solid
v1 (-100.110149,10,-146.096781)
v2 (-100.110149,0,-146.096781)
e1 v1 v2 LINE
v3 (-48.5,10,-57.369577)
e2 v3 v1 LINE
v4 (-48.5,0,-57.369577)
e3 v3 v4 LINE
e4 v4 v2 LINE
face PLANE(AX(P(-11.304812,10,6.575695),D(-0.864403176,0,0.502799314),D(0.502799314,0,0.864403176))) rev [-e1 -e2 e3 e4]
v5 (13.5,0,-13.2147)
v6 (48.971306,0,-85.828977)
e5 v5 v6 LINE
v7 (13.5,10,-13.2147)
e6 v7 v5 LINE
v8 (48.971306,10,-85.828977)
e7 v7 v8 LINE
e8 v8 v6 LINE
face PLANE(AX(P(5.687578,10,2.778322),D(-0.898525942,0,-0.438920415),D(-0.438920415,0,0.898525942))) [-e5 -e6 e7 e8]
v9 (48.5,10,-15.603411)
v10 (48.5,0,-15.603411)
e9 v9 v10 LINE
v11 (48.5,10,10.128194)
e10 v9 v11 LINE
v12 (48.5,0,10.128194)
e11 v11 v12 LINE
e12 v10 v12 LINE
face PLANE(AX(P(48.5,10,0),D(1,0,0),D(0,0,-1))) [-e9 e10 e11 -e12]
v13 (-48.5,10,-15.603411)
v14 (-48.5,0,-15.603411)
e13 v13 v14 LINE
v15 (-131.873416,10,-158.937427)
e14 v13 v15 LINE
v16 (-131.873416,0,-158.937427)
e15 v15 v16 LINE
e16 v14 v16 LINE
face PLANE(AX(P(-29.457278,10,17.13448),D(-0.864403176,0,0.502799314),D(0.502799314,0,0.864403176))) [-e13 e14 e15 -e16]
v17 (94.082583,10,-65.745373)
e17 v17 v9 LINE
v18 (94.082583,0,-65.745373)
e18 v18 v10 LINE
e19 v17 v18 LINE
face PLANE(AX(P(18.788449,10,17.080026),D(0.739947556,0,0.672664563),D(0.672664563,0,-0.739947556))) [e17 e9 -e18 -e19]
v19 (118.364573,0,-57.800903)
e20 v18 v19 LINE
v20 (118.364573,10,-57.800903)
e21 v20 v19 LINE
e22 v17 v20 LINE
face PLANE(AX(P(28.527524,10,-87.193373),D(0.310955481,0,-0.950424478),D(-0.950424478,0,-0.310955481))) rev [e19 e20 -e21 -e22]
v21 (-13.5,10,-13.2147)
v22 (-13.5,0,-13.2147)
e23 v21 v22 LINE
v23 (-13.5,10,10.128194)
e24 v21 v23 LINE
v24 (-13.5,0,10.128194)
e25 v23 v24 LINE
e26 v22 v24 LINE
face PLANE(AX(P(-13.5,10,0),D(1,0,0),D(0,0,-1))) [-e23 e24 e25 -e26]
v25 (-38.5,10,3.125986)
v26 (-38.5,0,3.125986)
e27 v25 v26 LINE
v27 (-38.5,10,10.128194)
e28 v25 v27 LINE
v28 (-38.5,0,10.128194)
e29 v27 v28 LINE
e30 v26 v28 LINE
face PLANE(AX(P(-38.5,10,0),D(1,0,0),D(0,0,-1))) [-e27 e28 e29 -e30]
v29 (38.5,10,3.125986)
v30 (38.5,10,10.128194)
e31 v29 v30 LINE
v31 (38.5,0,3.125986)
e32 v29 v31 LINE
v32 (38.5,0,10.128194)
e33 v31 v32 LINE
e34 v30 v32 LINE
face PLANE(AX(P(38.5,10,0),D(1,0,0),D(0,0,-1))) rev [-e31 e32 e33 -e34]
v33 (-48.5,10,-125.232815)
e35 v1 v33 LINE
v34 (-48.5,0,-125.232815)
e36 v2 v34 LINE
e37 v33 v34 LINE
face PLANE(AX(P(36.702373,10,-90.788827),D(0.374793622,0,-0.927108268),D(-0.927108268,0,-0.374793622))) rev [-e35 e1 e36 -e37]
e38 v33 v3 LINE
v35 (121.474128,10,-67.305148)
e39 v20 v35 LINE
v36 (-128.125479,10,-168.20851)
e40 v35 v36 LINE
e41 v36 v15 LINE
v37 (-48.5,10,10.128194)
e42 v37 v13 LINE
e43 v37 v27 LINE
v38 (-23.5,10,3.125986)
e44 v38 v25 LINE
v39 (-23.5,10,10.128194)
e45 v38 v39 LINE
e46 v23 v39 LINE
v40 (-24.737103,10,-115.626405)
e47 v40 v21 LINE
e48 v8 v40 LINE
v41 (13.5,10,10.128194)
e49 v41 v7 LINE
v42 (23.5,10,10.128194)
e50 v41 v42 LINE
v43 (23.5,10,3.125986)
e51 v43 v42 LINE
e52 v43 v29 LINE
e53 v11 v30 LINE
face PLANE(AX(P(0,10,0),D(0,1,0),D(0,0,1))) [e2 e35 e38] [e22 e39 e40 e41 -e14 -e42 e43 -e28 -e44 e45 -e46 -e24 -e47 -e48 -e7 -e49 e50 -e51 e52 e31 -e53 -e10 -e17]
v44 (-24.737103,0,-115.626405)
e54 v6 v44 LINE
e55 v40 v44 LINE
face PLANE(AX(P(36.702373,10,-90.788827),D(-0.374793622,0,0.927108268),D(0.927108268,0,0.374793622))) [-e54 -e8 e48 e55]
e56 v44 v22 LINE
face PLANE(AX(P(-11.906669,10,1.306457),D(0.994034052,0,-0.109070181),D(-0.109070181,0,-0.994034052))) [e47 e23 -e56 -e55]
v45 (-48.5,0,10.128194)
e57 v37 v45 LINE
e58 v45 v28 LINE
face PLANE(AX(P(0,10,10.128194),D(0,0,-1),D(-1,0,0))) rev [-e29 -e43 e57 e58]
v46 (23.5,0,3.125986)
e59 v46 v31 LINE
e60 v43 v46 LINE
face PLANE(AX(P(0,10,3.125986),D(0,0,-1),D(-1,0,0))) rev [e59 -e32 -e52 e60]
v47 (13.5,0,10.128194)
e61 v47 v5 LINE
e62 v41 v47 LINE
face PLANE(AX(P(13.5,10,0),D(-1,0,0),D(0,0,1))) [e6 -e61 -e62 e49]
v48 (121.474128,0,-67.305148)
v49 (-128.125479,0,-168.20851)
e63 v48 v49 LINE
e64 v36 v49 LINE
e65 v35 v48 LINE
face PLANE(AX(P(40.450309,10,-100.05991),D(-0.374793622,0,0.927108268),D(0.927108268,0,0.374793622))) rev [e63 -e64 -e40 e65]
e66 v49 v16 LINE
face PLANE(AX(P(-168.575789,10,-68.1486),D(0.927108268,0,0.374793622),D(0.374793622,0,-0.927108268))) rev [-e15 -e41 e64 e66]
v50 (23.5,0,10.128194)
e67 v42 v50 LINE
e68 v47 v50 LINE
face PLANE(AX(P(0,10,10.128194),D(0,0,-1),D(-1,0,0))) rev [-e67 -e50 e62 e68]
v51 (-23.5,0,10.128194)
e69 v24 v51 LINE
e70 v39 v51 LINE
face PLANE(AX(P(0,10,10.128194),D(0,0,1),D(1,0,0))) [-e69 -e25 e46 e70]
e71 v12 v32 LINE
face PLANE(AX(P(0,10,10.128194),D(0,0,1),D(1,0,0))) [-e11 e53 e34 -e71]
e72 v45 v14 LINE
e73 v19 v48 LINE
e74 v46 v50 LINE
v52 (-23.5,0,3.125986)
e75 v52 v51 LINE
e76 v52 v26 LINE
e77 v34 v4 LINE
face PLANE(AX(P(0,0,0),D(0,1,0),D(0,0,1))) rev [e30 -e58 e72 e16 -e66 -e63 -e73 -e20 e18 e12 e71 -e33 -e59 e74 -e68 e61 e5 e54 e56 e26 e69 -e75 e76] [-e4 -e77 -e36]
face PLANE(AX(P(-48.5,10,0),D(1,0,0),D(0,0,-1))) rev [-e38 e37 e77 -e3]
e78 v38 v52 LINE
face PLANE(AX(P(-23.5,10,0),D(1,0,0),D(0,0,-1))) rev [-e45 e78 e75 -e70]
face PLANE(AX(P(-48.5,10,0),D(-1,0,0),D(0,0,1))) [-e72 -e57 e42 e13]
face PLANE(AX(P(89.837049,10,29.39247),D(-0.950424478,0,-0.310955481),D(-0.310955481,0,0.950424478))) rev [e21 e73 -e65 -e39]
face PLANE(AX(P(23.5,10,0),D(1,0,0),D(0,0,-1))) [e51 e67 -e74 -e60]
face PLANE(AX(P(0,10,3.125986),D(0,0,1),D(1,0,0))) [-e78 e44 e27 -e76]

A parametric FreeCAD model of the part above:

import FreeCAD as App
import Part
import Sketcher
from FreeCAD import Vector
Q = App.Units.Quantity

doc = App.newDocument("Part")
body = doc.addObject("PartDesign::Body", "Body")

# Sketch on XZ plane
sketch1 = body.newObject("Sketcher::SketchObject", "Sketch")
sketch1.AttachmentSupport = (doc.getObject("XZ_Plane"), [""])
sketch1.MapMode = "FlatFace"
sketch1.addGeometry([
    Part.LineSegment(Vector(13.5, 10.1, 0), Vector(23.5, 10.1, 0)),  # 0
    Part.LineSegment(Vector(23.5, 10.1, 0), Vector(23.5, 3.1, 0)),  # 1
    Part.LineSegment(Vector(23.5, 3.1, 0), Vector(38.5, 3.1, 0)),  # 2
    Part.LineSegment(Vector(38.5, 3.1, 0), Vector(38.5, 10.1, 0)),  # 3
    Part.LineSegment(Vector(38.5, 10.1, 0), Vector(48.5, 10.1, 0)),  # 4
    Part.LineSegment(Vector(48.5, 10.1, 0), Vector(48.5, -15.6, 0)),  # 5
    Part.LineSegment(Vector(48.5, -15.6, 0), Vector(94.1, -65.7, 0)),  # 6
    Part.LineSegment(Vector(94.1, -65.7, 0), Vector(118.4, -57.8, 0)),  # 7
    Part.LineSegment(Vector(118.4, -57.8, 0), Vector(121.5, -67.3, 0)),  # 8
    Part.LineSegment(Vector(121.5, -67.3, 0), Vector(-128.1, -168.2, 0)),  # 9
    Part.LineSegment(Vector(-128.1, -168.2, 0), Vector(-131.9, -158.9, 0)),  # 10
    Part.LineSegment(Vector(-131.9, -158.9, 0), Vector(-48.5, -15.6, 0)),  # 11
    Part.LineSegment(Vector(-48.5, -15.6, 0), Vector(-48.5, 10.1, 0)),  # 12
    Part.LineSegment(Vector(-48.5, 10.1, 0), Vector(-38.5, 10.1, 0)),  # 13
    Part.LineSegment(Vector(-38.5, 10.1, 0), Vector(-38.5, 3.1, 0)),  # 14
    Part.LineSegment(Vector(-38.5, 3.1, 0), Vector(-23.5, 3.1, 0)),  # 15
    Part.LineSegment(Vector(-23.5, 3.1, 0), Vector(-23.5, 10.1, 0)),  # 16
    Part.LineSegment(Vector(-23.5, 10.1, 0), Vector(-13.5, 10.1, 0)),  # 17
    Part.LineSegment(Vector(-13.5, 10.1, 0), Vector(-13.5, -13.2, 0)),  # 18
    Part.LineSegment(Vector(-13.5, -13.2, 0), Vector(-24.7, -115.6, 0)),  # 19
    Part.LineSegment(Vector(-24.7, -115.6, 0), Vector(49, -85.8, 0)),  # 20
    Part.LineSegment(Vector(49, -85.8, 0), Vector(13.5, -13.2, 0)),  # 21
    Part.LineSegment(Vector(13.5, -13.2, 0), Vector(13.5, 10.1, 0)),  # 22
    Part.LineSegment(Vector(-100.1, -146.1, 0), Vector(-98.7, -145.5, 0)),  # 23
    Part.LineSegment(Vector(-98.7, -145.5, 0), Vector(-48.5, -125.2, 0)),  # 24
    Part.LineSegment(Vector(-48.5, -125.2, 0), Vector(-48.5, -57.4, 0)),  # 25
    Part.LineSegment(Vector(-48.5, -57.4, 0), Vector(-100.1, -146.1, 0)),  # 26
], False)
sketch1.addConstraint([
    Sketcher.Constraint("Coincident", 0, 2, 1, 1),
    Sketcher.Constraint("Coincident", 1, 2, 2, 1),
    Sketcher.Constraint("Coincident", 2, 2, 3, 1),
    Sketcher.Constraint("Coincident", 3, 2, 4, 1),
    Sketcher.Constraint("Coincident", 4, 2, 5, 1),
    Sketcher.Constraint("Coincident", 5, 2, 6, 1),
    Sketcher.Constraint("Coincident", 6, 2, 7, 1),
    Sketcher.Constraint("Coincident", 7, 2, 8, 1),
    Sketcher.Constraint("Coincident", 8, 2, 9, 1),
    Sketcher.Constraint("Coincident", 9, 2, 10, 1),
    Sketcher.Constraint("Coincident", 10, 2, 11, 1),
    Sketcher.Constraint("Coincident", 11, 2, 12, 1),
    Sketcher.Constraint("Coincident", 12, 2, 13, 1),
    Sketcher.Constraint("Coincident", 13, 2, 14, 1),
    Sketcher.Constraint("Coincident", 14, 2, 15, 1),
    Sketcher.Constraint("Coincident", 15, 2, 16, 1),
    Sketcher.Constraint("Coincident", 16, 2, 17, 1),
    Sketcher.Constraint("Coincident", 17, 2, 18, 1),
    Sketcher.Constraint("Coincident", 18, 2, 19, 1),
    Sketcher.Constraint("Coincident", 19, 2, 20, 1),
    Sketcher.Constraint("Coincident", 20, 2, 21, 1),
    Sketcher.Constraint("Coincident", 21, 2, 22, 1),
    Sketcher.Constraint("Coincident", 22, 2, 0, 1),
    Sketcher.Constraint("Coincident", 23, 2, 24, 1),
    Sketcher.Constraint("Coincident", 24, 2, 25, 1),
    Sketcher.Constraint("Coincident", 25, 2, 26, 1),
    Sketcher.Constraint("Coincident", 26, 2, 23, 1),
    Sketcher.Constraint("Horizontal", 0),
    Sketcher.Constraint("Vertical", 1),
    Sketcher.Constraint("Horizontal", 2),
    Sketcher.Constraint("Vertical", 3),
    Sketcher.Constraint("Horizontal", 4),
    Sketcher.Constraint("Vertical", 5),
    Sketcher.Constraint("Vertical", 12),
    Sketcher.Constraint("Horizontal", 13),
    Sketcher.Constraint("Vertical", 14),
    Sketcher.Constraint("Horizontal", 15),
    Sketcher.Constraint("Vertical", 16),
    Sketcher.Constraint("Horizontal", 17),
    Sketcher.Constraint("Vertical", 18),
    Sketcher.Constraint("Vertical", 22),
    Sketcher.Constraint("Vertical", 25),
    Sketcher.Constraint("Symmetric", 5, 2, 11, 2, -2),
    Sketcher.Constraint("Symmetric", 3, 2, 13, 2, -2),
    Sketcher.Constraint("Symmetric", 1, 2, 15, 2, -2),
    Sketcher.Constraint("Symmetric", 18, 2, 21, 2, -2),
    Sketcher.Constraint("Perpendicular", 7, 8),
    Sketcher.Constraint("Perpendicular", 9, 10),
    Sketcher.Constraint("Perpendicular", 10, 20),
    Sketcher.Constraint("Parallel", 20, 23),
    Sketcher.Constraint("Parallel", 23, 24),
    Sketcher.Constraint("Parallel", 11, 26),
    Sketcher.Constraint("Horizontal", 0, 2, 3, 2),
    Sketcher.Constraint("Horizontal", 13, 2, 16, 2),
    Sketcher.Constraint("Vertical", 12, 2, 24, 2),
    Sketcher.Constraint("Equal", 0, 4),
    Sketcher.Constraint("Equal", 8, 10),
    Sketcher.Constraint("DistanceX", 0, 1, 0, 2, Q("10 mm")),
    Sketcher.Constraint("DistanceX", 2, 1, 2, 2, Q("15 mm")),
    Sketcher.Constraint("Distance", 8, Q("10 mm")),
    Sketcher.Constraint("DistanceX", 11, 2, 1, 2, Q("72 mm")),
    Sketcher.Constraint("DistanceY", 1, 2, 1, 1, Q("7.002208 mm")),
    Sketcher.Constraint("DistanceY", 18, 2, -1, 1, Q("13.2147 mm")),
    Sketcher.Constraint("DistanceY", 9, 2, 5, 2, Q("152.605099 mm")),
    Sketcher.Constraint("Distance", 6, Q("67.764211 mm")),
    Sketcher.Constraint("Distance", 20, Q("79.503562 mm")),
    Sketcher.Constraint("DistanceY", 5, 2, 5, 1, Q("25.731604 mm")),
    Sketcher.Constraint("DistanceY", 18, 2, 18, 1, Q("23.342893 mm")),
    Sketcher.Constraint("DistanceY", 25, 1, 25, 2, Q("67.863238 mm")),
    Sketcher.Constraint("DistanceY", 8, 2, -1, 1, Q("67.305148 mm")),
    Sketcher.Constraint("DistanceX", 9, 2, -1, 1, Q("128.125479 mm")),
    Sketcher.Constraint("DistanceX", 26, 2, -1, 1, Q("100.110149 mm")),
    Sketcher.Constraint("DistanceY", 26, 2, -1, 1, Q("146.096781 mm")),
    Sketcher.Constraint("DistanceY", 6, 2, 2, 2, Q("68.871358 mm")),
    Sketcher.Constraint("DistanceY", 19, 2, 15, 2, Q("118.752391 mm")),
    Sketcher.Constraint("DistanceX", 20, 2, 8, 2, Q("72.502822 mm")),
    Sketcher.Constraint("DistanceY", 10, 2, 23, 2, Q("13.41527 mm")),
])
pad1 = body.newObject("PartDesign::Pad", "Pad")
pad1.Profile = sketch1
pad1.Length = 10
pad1.Reversed = True

doc.recompute()
